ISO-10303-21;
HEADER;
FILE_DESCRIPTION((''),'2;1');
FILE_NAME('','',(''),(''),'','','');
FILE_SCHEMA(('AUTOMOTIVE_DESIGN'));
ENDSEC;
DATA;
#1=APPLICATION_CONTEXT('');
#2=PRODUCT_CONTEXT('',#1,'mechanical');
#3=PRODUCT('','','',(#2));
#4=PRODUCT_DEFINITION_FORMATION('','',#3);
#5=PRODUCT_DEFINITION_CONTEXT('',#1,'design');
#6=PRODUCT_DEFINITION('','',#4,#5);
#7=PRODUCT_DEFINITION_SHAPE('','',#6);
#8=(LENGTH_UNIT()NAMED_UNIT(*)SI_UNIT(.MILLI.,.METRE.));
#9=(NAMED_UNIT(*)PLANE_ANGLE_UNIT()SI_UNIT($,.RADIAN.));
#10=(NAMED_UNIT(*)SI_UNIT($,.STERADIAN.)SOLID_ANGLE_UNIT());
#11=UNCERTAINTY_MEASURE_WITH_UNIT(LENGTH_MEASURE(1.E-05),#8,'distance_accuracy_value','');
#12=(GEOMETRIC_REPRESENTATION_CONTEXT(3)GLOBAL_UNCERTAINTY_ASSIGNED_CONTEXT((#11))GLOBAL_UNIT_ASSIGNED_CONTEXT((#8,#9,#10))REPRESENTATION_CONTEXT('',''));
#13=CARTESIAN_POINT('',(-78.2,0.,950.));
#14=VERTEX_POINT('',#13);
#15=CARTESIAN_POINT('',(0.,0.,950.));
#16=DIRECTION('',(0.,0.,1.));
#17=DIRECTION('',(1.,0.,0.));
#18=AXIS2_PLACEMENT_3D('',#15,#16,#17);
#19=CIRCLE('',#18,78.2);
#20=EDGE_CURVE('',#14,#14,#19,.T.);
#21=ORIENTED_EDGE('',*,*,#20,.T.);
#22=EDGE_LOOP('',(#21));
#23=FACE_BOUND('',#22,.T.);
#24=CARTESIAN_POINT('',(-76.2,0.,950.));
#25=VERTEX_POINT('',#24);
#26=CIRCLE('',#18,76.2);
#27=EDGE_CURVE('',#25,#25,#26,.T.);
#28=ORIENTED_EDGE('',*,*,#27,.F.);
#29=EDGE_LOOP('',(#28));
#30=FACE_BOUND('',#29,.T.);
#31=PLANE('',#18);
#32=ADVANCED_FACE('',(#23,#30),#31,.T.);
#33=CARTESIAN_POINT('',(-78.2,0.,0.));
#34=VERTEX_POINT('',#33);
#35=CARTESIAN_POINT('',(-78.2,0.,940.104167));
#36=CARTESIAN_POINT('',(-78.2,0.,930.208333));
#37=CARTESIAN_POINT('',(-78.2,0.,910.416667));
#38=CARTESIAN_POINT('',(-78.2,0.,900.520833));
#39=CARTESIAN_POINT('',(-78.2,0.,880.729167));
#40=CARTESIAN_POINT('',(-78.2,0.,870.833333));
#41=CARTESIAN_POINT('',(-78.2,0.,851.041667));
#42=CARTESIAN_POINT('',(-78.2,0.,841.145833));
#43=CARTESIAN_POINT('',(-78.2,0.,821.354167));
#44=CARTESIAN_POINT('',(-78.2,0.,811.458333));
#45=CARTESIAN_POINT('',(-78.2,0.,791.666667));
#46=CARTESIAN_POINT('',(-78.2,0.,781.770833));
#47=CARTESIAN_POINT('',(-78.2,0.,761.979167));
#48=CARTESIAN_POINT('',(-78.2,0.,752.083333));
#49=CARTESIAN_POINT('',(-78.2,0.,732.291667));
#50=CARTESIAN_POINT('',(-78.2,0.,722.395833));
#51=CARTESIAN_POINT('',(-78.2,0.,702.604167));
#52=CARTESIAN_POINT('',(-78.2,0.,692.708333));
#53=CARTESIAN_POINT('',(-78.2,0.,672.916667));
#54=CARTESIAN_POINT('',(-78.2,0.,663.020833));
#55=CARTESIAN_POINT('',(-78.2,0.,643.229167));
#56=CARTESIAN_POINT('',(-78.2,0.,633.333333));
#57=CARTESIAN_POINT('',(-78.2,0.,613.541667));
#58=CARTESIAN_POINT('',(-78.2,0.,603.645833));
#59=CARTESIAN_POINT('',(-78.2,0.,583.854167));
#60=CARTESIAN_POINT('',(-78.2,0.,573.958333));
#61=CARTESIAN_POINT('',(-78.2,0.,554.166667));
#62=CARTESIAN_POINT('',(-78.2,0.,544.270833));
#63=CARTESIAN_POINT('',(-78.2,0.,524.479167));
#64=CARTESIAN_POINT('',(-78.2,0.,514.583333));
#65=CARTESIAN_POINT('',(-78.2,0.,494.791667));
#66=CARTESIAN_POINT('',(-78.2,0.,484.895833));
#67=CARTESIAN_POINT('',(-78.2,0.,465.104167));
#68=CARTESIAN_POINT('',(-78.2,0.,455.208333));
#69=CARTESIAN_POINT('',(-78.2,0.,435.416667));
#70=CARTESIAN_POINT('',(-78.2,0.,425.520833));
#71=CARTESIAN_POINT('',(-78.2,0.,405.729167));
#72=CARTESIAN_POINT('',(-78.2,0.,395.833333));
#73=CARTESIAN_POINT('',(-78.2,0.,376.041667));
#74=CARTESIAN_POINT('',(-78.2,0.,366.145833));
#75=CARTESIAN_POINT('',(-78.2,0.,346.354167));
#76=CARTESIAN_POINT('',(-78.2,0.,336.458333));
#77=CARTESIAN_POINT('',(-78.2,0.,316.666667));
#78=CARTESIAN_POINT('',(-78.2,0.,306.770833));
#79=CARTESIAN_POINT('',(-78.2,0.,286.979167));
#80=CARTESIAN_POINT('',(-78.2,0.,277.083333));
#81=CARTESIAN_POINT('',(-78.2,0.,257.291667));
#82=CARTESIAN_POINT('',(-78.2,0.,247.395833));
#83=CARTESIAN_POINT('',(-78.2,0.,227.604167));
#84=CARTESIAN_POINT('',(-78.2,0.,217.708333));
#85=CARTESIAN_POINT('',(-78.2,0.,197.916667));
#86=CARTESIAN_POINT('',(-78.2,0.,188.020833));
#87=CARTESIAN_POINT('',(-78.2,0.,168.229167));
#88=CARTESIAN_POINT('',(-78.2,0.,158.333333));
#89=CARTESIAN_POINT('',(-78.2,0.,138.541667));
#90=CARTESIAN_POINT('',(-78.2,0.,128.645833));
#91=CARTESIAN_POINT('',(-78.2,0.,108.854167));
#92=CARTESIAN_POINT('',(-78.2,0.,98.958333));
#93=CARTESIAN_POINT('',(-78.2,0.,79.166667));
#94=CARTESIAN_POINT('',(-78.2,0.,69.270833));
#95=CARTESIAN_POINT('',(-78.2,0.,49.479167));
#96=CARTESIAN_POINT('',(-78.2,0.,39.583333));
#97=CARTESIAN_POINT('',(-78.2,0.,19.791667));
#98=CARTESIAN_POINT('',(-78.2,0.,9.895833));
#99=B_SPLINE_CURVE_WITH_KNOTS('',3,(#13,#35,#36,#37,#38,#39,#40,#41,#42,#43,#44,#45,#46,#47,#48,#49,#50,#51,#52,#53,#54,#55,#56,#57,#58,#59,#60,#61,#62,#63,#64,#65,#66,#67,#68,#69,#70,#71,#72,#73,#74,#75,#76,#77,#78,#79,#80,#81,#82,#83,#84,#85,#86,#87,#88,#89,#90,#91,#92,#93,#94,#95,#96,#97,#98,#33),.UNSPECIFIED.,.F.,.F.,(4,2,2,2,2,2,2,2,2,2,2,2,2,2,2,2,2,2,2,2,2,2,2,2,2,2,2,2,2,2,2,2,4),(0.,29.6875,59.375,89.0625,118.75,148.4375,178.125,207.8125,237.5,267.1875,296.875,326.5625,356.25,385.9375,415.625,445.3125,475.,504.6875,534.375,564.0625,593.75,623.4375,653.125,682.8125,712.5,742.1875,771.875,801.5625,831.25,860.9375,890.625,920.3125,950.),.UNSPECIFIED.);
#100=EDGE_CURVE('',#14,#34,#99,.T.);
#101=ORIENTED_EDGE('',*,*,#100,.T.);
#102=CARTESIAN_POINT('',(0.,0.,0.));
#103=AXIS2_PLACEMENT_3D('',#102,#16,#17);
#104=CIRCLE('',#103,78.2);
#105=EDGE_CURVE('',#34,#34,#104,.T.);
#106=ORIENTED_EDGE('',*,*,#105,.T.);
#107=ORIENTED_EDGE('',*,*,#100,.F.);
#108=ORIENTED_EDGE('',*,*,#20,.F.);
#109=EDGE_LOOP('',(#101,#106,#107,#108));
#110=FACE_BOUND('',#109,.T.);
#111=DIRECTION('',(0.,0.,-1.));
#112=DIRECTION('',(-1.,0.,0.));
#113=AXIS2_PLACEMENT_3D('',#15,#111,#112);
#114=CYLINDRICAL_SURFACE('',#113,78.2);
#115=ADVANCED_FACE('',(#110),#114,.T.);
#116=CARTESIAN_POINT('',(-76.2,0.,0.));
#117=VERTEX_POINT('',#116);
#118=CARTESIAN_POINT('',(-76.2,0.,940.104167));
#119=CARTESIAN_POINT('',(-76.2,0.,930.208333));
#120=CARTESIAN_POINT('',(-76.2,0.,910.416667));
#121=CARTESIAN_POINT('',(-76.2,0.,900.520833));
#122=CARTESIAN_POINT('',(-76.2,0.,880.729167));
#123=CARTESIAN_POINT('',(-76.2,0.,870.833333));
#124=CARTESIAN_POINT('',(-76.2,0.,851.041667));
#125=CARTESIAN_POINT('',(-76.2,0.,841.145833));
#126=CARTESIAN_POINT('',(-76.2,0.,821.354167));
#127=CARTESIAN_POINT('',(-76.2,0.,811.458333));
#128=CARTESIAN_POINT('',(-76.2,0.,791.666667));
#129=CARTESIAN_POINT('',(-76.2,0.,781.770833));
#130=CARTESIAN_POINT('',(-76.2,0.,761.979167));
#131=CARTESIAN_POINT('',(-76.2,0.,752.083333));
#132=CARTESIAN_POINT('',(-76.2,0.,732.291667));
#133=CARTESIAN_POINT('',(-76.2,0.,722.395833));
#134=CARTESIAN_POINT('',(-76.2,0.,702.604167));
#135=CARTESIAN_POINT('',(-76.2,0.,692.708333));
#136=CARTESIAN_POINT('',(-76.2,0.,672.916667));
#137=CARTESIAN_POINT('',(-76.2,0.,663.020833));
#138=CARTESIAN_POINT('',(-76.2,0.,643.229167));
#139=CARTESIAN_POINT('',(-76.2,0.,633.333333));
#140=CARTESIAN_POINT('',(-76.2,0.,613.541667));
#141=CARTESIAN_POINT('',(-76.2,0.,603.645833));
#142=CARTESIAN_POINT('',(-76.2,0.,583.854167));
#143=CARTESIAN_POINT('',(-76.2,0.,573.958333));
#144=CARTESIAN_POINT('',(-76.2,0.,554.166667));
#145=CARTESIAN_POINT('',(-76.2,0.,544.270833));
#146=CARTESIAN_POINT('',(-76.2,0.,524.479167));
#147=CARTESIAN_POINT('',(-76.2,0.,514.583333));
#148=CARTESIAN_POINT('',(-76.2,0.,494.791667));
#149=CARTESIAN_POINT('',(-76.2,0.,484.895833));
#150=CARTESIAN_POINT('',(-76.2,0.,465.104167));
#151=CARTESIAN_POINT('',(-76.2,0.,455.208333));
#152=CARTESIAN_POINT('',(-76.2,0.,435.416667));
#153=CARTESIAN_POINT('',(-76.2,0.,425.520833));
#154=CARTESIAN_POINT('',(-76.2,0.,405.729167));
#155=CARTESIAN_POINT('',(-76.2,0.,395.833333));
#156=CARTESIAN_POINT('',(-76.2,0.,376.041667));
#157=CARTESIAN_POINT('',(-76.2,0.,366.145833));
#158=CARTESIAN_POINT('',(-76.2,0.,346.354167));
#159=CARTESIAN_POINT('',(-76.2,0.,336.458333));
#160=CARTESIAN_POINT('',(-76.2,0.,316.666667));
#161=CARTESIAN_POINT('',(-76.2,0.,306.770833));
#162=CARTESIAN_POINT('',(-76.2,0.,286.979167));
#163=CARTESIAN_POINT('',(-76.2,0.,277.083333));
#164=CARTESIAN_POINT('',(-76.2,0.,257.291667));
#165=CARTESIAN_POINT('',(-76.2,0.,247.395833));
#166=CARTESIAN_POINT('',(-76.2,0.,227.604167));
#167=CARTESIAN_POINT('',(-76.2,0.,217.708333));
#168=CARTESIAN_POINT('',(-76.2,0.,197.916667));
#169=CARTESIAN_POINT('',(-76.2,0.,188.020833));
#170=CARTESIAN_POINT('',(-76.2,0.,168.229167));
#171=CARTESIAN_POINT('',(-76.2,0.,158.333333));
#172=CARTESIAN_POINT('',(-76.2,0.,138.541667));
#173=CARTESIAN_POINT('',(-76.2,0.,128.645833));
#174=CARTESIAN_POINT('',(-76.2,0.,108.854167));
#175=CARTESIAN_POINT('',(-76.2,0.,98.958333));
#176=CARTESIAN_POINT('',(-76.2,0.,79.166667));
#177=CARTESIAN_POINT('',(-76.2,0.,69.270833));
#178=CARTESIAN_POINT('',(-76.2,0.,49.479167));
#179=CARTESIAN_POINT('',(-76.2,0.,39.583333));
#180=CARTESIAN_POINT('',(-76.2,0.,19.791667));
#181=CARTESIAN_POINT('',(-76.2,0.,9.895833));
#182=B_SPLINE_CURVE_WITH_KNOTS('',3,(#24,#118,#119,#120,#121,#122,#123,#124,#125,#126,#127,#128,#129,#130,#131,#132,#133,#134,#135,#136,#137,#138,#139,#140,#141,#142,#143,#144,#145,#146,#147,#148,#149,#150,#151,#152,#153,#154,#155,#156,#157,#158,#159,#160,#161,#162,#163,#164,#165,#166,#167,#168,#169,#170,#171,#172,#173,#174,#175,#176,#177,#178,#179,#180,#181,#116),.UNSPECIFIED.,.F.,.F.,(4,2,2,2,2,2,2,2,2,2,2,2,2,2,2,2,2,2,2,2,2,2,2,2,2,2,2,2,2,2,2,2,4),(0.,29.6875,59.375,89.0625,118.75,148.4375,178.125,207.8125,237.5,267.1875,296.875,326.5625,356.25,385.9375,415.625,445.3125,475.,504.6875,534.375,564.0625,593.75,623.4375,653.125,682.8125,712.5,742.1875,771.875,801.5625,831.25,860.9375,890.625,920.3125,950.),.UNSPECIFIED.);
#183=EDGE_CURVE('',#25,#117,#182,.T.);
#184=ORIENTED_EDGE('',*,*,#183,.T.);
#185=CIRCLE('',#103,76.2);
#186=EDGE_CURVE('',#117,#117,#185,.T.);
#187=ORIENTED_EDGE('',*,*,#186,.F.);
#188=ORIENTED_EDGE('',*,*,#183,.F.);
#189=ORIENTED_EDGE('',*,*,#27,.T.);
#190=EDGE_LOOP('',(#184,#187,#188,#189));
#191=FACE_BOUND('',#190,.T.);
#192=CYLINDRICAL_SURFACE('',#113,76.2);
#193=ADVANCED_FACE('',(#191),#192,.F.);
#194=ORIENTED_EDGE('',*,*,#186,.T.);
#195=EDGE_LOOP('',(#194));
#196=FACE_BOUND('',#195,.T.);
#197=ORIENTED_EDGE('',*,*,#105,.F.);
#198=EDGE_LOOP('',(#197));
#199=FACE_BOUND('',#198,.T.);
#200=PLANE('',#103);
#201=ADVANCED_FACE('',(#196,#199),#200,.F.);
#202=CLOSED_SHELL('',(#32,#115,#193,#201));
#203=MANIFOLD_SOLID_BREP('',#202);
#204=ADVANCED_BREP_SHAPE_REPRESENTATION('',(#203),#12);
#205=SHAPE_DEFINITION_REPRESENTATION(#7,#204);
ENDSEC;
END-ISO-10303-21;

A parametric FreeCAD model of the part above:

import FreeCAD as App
import Part
import Sketcher

V = App.Vector
Q = App.Units.Quantity

doc = App.newDocument("Part")
body = doc.addObject("PartDesign::Body", "Body")

# Sketch on XY plane
sketch1 = body.newObject("Sketcher::SketchObject", "Sketch")
sketch1.AttachmentSupport = (doc.getObject("XY_Plane"), [""])
sketch1.MapMode = "FlatFace"
sketch1.addGeometry(Part.Circle(V(0, 0, 0), V(0, 0, 1), 78), False)
sketch1.addGeometry(Part.Circle(V(0, 0, 0), V(0, 0, 1), 76), False)
sketch1.addConstraint(Sketcher.Constraint("Coincident", 0, 3, -1, 1))
sketch1.addConstraint(Sketcher.Constraint("Coincident", 1, 3, -1, 1))
sketch1.addConstraint(Sketcher.Constraint("Diameter", 0, Q("156.4 mm")))
sketch1.addConstraint(Sketcher.Constraint("Diameter", 1, Q("152.4 mm")))
pad1 = body.newObject("PartDesign::Pad", "Pad")
pad1.Profile = sketch1
pad1.Length = 950

doc.recompute()
